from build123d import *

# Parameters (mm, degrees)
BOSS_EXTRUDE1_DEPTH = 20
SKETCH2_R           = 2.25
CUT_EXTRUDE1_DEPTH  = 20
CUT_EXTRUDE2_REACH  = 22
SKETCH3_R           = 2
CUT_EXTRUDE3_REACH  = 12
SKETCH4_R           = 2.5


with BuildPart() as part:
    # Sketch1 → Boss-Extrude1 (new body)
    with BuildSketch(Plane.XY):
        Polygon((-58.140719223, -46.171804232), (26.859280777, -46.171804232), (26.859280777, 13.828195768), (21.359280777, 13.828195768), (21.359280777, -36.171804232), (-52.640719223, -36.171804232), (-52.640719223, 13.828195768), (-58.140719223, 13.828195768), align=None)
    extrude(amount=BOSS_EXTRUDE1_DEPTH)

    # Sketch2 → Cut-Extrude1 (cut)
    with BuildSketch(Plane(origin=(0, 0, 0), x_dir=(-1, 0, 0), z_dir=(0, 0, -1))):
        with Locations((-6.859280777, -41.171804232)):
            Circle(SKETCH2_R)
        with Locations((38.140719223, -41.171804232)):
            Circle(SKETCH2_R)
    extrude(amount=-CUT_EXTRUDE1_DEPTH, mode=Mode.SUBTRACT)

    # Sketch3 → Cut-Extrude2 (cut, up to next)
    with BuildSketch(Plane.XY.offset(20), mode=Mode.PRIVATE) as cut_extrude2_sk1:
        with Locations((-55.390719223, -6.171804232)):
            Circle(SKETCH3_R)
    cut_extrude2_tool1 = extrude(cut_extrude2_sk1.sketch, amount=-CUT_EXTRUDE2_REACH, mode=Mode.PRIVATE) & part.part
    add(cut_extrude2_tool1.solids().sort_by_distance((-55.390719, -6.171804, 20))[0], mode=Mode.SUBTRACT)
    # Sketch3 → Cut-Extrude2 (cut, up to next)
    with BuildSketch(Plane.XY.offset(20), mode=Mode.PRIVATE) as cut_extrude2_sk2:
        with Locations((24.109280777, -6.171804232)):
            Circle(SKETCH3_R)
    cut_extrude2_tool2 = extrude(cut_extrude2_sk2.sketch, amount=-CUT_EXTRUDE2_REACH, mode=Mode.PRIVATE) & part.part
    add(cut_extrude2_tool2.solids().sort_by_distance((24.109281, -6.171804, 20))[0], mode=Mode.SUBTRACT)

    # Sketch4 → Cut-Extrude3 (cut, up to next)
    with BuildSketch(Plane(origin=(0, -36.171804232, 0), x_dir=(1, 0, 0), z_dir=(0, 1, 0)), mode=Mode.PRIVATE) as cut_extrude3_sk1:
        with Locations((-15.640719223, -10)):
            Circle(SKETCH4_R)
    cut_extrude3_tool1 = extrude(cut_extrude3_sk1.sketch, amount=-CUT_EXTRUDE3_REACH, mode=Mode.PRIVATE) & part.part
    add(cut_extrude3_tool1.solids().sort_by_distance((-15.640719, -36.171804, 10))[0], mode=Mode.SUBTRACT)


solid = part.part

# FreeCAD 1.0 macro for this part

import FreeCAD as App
import Part
import Sketcher
from FreeCAD import Vector
Q = App.Units.Quantity


def add_polygon(sketch, points):
    """Adds a closed chain of lines whose ends are joined by coincident constraints."""
    first, n = sketch.GeometryCount, len(points)
    for a, b in zip(points, points[1:] + points[:1]):
        sketch.addGeometry(Part.LineSegment(App.Vector(*a, 0), App.Vector(*b, 0)), False)
    for i in range(n):
        sketch.addConstraint(Sketcher.Constraint("Coincident", first + i, 2, first + (i + 1) % n, 1))

doc = App.newDocument("Part")
body = doc.addObject("PartDesign::Body", "Body")

sketch1 = body.newObject("Sketcher::SketchObject", "Sketch")
sketch1.AttachmentSupport = (doc.getObject("XY_Plane"), [""])
sketch1.MapMode = "FlatFace"
add_polygon(sketch1, [(-58, -46), (27, -46), (27, 14), (21, 14), (21, -36), (-53, -36), (-53, 14), (-58, 14)])
sketch1.addConstraint([
    Sketcher.Constraint("Horizontal", 0),
    Sketcher.Constraint("Vertical", 1),
    Sketcher.Constraint("Horizontal", 2),
    Sketcher.Constraint("Vertical", 3),
    Sketcher.Constraint("Horizontal", 4),
    Sketcher.Constraint("Vertical", 5),
    Sketcher.Constraint("Horizontal", 6),
    Sketcher.Constraint("Vertical", 7),
    Sketcher.Constraint("Horizontal", 2, 2, 5, 2),
    Sketcher.Constraint("Equal", 2, 6),
    Sketcher.Constraint("DistanceX", 0, 1, 0, 2, Q("85 mm")),
    Sketcher.Constraint("DistanceX", 4, 2, 4, 1, Q("74 mm")),
    Sketcher.Constraint("DistanceY", 1, 1, 1, 2, Q("60 mm")),
    Sketcher.Constraint("DistanceY", 3, 2, 3, 1, Q("50 mm")),
    Sketcher.Constraint("DistanceX", -1, 1, 0, 2, Q("26.859281 mm")),
    Sketcher.Constraint("DistanceY", 0, 2, -1, 1, Q("46.171804 mm")),
])
pad1 = body.newObject("PartDesign::Pad", "Pad")
pad1.Profile = sketch1
pad1.Length = 20

sketch2 = body.newObject("Sketcher::SketchObject", "Sketch001")
sketch2.AttachmentSupport = (doc.getObject("XY_Plane"), [""])
sketch2.MapMode = "FlatFace"
sketch2.addGeometry([
    Part.Circle(Vector(6.9, -41.2, 0), Vector(0, 0, 1), 2.2),
    Part.Circle(Vector(-38.1, -41.2, 0), Vector(0, 0, 1), 2.2),
], False)
sketch2.addConstraint([
    Sketcher.Constraint("Equal", 0, 1),
    Sketcher.Constraint("Horizontal", 0, 3, 1, 3),
    Sketcher.Constraint("Diameter", 0, Q("4.5 mm")),
    Sketcher.Constraint("DistanceX", 1, 3, 0, 3, Q("45 mm")),
    Sketcher.Constraint("DistanceX", -1, 1, 0, 3, Q("6.859281 mm")),
    Sketcher.Constraint("DistanceY", 0, 3, -1, 1, Q("41.171804 mm")),
])
pocket1 = body.newObject("PartDesign::Pocket", "Pocket")
pocket1.Profile = sketch2
pocket1.Length = 20
pocket1.Reversed = True

sketch3 = body.newObject("Sketcher::SketchObject", "Sketch002")
sketch3.AttachmentSupport = (doc.getObject("XY_Plane"), [""])
sketch3.MapMode = "FlatFace"
sketch3.AttachmentOffset = App.Placement(Vector(0, 0, 20), App.Rotation())
sketch3.addGeometry(Part.Circle(Vector(-55.4, -6.2, 0), Vector(0, 0, 1), 2), False)
sketch3.addConstraint([
    Sketcher.Constraint("Diameter", 0, Q("4 mm")),
    Sketcher.Constraint("DistanceX", 0, 3, -1, 1, Q("55.390719 mm")),
    Sketcher.Constraint("DistanceY", 0, 3, -1, 1, Q("6.171804 mm")),
])
pocket2 = body.newObject("PartDesign::Pocket", "Pocket001")
pocket2.Profile = sketch3
pocket2.Type = "UpToFirst"

sketch4 = body.newObject("Sketcher::SketchObject", "Sketch003")
sketch4.AttachmentSupport = (doc.getObject("XY_Plane"), [""])
sketch4.MapMode = "FlatFace"
sketch4.AttachmentOffset = App.Placement(Vector(0, 0, 20), App.Rotation())
sketch4.addGeometry(Part.Circle(Vector(24.1, -6.2, 0), Vector(0, 0, 1), 2), False)
sketch4.addConstraint([
    Sketcher.Constraint("Diameter", 0, Q("4 mm")),
    Sketcher.Constraint("DistanceX", -1, 1, 0, 3, Q("24.109281 mm")),
    Sketcher.Constraint("DistanceY", 0, 3, -1, 1, Q("6.171804 mm")),
])
pocket3 = body.newObject("PartDesign::Pocket", "Pocket002")
pocket3.Profile = sketch4
pocket3.Type = "UpToFirst"

sketch5 = body.newObject("Sketcher::SketchObject", "Sketch004")
sketch5.AttachmentSupport = (doc.getObject("XZ_Plane"), [""])
sketch5.MapMode = "FlatFace"
sketch5.AttachmentOffset = App.Placement(Vector(0, 0, 36.171804), App.Rotation())
sketch5.addGeometry(Part.Circle(Vector(-15.6, 10, 0), Vector(0, 0, 1), 2.5), False)
sketch5.addConstraint([
    Sketcher.Constraint("Diameter", 0, Q("5 mm")),
    Sketcher.Constraint("DistanceY", -1, 1, 0, 3, Q("10 mm")),
    Sketcher.Constraint("DistanceX", 0, 3, -1, 1, Q("15.640719 mm")),
])
pocket4 = body.newObject("PartDesign::Pocket", "Pocket003")
pocket4.Profile = sketch5
pocket4.Type = "UpToFirst"
pocket4.Reversed = True

doc.recompute()
